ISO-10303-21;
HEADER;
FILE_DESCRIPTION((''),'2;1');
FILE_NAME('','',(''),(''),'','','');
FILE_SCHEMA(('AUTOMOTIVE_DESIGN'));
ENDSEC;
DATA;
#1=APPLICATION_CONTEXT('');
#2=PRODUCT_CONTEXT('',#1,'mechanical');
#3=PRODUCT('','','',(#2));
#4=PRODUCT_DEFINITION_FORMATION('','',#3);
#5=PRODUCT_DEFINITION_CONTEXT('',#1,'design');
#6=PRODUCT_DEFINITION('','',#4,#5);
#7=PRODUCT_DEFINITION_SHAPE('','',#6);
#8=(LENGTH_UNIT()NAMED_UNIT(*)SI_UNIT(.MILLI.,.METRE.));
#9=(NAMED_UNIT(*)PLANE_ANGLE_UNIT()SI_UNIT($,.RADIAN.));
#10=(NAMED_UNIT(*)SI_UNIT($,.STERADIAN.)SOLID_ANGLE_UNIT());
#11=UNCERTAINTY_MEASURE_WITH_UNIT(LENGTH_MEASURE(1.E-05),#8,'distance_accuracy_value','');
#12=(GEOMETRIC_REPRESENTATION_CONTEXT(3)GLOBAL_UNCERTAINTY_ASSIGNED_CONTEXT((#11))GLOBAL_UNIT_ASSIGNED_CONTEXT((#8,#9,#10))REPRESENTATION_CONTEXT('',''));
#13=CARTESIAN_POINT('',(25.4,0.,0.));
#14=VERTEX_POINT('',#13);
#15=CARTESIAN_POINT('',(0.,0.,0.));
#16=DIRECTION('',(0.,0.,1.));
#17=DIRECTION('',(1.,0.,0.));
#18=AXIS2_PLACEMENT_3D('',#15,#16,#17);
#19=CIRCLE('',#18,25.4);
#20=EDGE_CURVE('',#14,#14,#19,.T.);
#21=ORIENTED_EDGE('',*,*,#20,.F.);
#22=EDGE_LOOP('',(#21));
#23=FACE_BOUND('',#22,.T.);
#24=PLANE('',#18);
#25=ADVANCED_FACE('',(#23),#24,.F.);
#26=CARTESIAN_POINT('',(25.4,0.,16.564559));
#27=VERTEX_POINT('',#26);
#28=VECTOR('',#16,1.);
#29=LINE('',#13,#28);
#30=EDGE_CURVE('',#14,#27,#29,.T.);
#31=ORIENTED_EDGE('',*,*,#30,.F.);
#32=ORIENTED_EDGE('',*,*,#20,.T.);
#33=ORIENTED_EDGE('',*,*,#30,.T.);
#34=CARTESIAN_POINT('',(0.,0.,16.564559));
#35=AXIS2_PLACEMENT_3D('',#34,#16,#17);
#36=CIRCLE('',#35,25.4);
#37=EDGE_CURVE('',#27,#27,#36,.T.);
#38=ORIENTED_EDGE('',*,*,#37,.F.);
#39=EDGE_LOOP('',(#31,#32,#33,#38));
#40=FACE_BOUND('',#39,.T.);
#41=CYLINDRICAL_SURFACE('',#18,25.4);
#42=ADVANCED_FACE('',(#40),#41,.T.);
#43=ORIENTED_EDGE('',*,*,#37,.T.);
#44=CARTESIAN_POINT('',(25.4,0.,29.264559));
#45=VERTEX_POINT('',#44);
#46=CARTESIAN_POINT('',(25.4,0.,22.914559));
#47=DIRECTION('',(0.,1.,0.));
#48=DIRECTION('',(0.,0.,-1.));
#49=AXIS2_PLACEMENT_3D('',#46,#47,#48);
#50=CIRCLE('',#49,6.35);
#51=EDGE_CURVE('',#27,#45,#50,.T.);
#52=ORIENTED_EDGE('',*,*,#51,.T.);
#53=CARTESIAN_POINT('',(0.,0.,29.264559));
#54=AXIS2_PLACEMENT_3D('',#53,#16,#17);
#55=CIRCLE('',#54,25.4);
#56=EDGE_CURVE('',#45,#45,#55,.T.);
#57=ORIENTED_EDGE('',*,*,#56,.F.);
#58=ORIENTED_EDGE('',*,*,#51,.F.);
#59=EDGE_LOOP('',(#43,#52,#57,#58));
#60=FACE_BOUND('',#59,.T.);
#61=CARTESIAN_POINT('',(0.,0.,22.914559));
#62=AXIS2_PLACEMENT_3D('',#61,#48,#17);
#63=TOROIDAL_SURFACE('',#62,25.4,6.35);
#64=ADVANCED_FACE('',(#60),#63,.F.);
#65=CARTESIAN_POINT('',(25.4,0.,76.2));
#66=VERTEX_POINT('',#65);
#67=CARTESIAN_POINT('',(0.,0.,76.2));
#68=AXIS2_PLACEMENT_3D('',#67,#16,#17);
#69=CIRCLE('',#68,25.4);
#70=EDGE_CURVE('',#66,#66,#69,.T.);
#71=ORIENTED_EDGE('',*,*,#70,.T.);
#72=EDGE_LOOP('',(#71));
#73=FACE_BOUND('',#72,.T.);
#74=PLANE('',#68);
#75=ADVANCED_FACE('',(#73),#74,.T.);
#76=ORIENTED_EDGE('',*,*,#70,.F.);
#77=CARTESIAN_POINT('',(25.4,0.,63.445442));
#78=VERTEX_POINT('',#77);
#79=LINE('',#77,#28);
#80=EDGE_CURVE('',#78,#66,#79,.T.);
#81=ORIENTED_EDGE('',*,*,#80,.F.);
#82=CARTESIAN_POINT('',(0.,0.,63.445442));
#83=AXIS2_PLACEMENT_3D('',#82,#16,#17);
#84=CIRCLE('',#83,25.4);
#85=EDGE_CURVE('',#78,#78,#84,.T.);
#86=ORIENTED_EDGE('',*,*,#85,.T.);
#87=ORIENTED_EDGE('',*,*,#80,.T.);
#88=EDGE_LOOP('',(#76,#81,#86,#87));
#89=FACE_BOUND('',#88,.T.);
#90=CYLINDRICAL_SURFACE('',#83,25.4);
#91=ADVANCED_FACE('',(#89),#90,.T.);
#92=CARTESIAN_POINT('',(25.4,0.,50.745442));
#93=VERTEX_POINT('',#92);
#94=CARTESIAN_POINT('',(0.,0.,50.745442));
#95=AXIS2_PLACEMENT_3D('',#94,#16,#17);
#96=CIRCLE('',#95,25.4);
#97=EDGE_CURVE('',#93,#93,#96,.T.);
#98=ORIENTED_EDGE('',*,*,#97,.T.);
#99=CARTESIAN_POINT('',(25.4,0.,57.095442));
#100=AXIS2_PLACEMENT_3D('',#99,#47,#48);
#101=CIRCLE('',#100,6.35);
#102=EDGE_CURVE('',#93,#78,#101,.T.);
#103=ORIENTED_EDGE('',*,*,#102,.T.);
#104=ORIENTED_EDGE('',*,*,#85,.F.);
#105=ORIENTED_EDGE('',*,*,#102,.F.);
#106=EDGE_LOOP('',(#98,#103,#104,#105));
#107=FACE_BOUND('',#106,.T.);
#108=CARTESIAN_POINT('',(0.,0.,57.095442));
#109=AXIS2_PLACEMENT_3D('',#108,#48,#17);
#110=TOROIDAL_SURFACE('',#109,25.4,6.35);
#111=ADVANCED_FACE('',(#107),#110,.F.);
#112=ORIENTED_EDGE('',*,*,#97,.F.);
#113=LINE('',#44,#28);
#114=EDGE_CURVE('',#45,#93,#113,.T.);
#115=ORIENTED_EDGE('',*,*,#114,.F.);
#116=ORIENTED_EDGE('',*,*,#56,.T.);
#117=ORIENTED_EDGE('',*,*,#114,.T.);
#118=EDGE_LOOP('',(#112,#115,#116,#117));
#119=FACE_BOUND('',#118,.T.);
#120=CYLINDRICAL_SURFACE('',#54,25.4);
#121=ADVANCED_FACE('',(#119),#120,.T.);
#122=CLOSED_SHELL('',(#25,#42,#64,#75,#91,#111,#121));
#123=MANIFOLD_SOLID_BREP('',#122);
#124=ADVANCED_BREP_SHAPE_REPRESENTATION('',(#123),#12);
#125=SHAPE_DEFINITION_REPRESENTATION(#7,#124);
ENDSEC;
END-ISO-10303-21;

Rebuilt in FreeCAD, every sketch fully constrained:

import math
import FreeCAD as App
import Part
import Sketcher
Q = App.Units.Quantity

doc = App.newDocument("Part")
body = doc.addObject("PartDesign::Body", "Body")

sketch1 = body.newObject("Sketcher::SketchObject", "Sketch")
sketch1.AttachmentSupport = (doc.getObject("XZ_Plane"), [""])
sketch1.MapMode = "FlatFace"
sketch1.addGeometry(Part.LineSegment(App.Vector(0, 76, 0), App.Vector(0, 0, 0)), False)
sketch1.addGeometry(Part.LineSegment(App.Vector(0, 0, 0), App.Vector(25, 0, 0)), False)
sketch1.addGeometry(Part.LineSegment(App.Vector(25, 0, 0), App.Vector(25, 17, 0)), False)
sketch1.addGeometry(Part.ArcOfCircle(Part.Circle(App.Vector(25, 23, 0), App.Vector(0, 0, 1), 6), math.radians(90), math.radians(270)), False)
sketch1.addGeometry(Part.LineSegment(App.Vector(25, 29, 0), App.Vector(25, 51, 0)), False)
sketch1.addGeometry(Part.ArcOfCircle(Part.Circle(App.Vector(25, 57, 0), App.Vector(0, 0, 1), 6), math.radians(90), math.radians(270)), False)
sketch1.addGeometry(Part.LineSegment(App.Vector(25, 63, 0), App.Vector(25, 76, 0)), False)
sketch1.addGeometry(Part.LineSegment(App.Vector(25, 76, 0), App.Vector(0, 76, 0)), False)
sketch1.addConstraint(Sketcher.Constraint("Coincident", 0, 2, 1, 1))
sketch1.addConstraint(Sketcher.Constraint("Coincident", 1, 2, 2, 1))
sketch1.addConstraint(Sketcher.Constraint("Coincident", 2, 2, 3, 2))
sketch1.addConstraint(Sketcher.Constraint("Coincident", 3, 1, 4, 1))
sketch1.addConstraint(Sketcher.Constraint("Coincident", 4, 2, 5, 2))
sketch1.addConstraint(Sketcher.Constraint("Coincident", 5, 1, 6, 1))
sketch1.addConstraint(Sketcher.Constraint("Coincident", 6, 2, 7, 1))
sketch1.addConstraint(Sketcher.Constraint("Coincident", 7, 2, 0, 1))
sketch1.addConstraint(Sketcher.Constraint("Vertical", 0))
sketch1.addConstraint(Sketcher.Constraint("Horizontal", 1))
sketch1.addConstraint(Sketcher.Constraint("Vertical", 2))
sketch1.addConstraint(Sketcher.Constraint("Vertical", 4))
sketch1.addConstraint(Sketcher.Constraint("Vertical", 6))
sketch1.addConstraint(Sketcher.Constraint("Horizontal", 7))
sketch1.addConstraint(Sketcher.Constraint("Coincident", 0, 2, -1, 1))
sketch1.addConstraint(Sketcher.Constraint("Equal", 3, 5))
sketch1.addConstraint(Sketcher.Constraint("Vertical", 3, 3, 5, 3))
sketch1.addConstraint(Sketcher.Constraint("Vertical", 5, 3, 1, 2))
sketch1.addConstraint(Sketcher.Constraint("Vertical", 2, 2, 3, 1))
sketch1.addConstraint(Sketcher.Constraint("Vertical", 4, 2, 5, 1))
sketch1.addConstraint(Sketcher.Constraint("DistanceX", 1, 1, 1, 2, Q("1 in")))
sketch1.addConstraint(Sketcher.Constraint("DistanceY", 0, 2, 0, 1, Q("3 in")))
sketch1.addConstraint(Sketcher.Constraint("Radius", 3, Q("0.25 in")))
sketch1.addConstraint(Sketcher.Constraint("DistanceY", 2, 1, 2, 2, Q("16.564559 mm")))
sketch1.addConstraint(Sketcher.Constraint("DistanceY", 6, 1, 6, 2, Q("12.754558 mm")))
revolution = body.newObject("PartDesign::Revolution", "Revolution")
revolution.Profile = sketch1
revolution.ReferenceAxis = (sketch1, ["V_Axis"])
revolution.Angle = 360

doc.recompute()
